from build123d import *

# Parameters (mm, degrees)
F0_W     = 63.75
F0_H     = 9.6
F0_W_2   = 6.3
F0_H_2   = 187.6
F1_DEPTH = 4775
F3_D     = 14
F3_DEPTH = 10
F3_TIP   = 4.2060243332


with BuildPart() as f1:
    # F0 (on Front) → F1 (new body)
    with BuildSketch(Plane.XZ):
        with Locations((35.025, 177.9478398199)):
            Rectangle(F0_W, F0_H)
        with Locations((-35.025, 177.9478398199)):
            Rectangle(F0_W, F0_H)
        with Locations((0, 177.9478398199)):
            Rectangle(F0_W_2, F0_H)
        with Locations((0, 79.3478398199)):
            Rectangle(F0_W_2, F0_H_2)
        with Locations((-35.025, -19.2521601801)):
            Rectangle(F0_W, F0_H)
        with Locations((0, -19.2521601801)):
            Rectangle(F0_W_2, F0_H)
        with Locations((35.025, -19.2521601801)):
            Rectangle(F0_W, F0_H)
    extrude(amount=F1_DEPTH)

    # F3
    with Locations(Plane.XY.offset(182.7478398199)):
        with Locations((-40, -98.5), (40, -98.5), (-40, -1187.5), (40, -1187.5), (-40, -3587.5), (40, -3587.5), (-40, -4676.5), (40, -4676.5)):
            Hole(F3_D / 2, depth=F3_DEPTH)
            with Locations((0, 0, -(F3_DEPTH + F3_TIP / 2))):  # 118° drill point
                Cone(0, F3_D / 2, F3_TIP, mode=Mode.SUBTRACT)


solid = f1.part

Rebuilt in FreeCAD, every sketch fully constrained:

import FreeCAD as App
import Part
import Sketcher
from FreeCAD import Vector


def add_polygon(sketch, points):
    """Adds a closed chain of lines whose ends are joined by coincident constraints."""
    first, n = sketch.GeometryCount, len(points)
    for a, b in zip(points, points[1:] + points[:1]):
        sketch.addGeometry(Part.LineSegment(App.Vector(*a, 0), App.Vector(*b, 0)), False)
    for i in range(n):
        sketch.addConstraint(Sketcher.Constraint("Coincident", first + i, 2, first + (i + 1) % n, 1))

doc = App.newDocument("Part")
params = doc.addObject("Spreadsheet::Sheet", "Params")
for row, (alias, value) in enumerate([
    ("sketch1_width", "133.8 mm"),
    ("sketch1_height", "9.6 mm"),
    ("sketch1_height2", "187.6 mm"),
    ("sketch1_width2", "63.75 mm"),
    ("pad1_length", "4775 mm"),
    ("sketch2_diameter", "14 mm"),
    ("hole_diameter", "14 mm"),
    ("hole_depth", "10 mm"),
], start=1):
    params.set(f"A{row}", alias)
    params.set(f"B{row}", "=" + value)
    params.setAlias(f"B{row}", alias)

body = doc.addObject("PartDesign::Body", "Body")

sketch1 = body.newObject("Sketcher::SketchObject", "Sketch")
sketch1.AttachmentSupport = (doc.getObject("XZ_Plane"), [""])
sketch1.MapMode = "FlatFace"
add_polygon(sketch1, [(67, 173), (67, 183), (-67, 183), (-67, 173), (-3, 173), (-3, -14), (-67, -14), (-67, -24), (67, -24), (67, -14), (3, -14), (3, 173)])
sketch1.addConstraint([
    Sketcher.Constraint("Vertical", 0),
    Sketcher.Constraint("Horizontal", 1),
    Sketcher.Constraint("Vertical", 2),
    Sketcher.Constraint("Horizontal", 3),
    Sketcher.Constraint("Vertical", 4),
    Sketcher.Constraint("Horizontal", 5),
    Sketcher.Constraint("Vertical", 6),
    Sketcher.Constraint("Horizontal", 7),
    Sketcher.Constraint("Vertical", 8),
    Sketcher.Constraint("Horizontal", 9),
    Sketcher.Constraint("Vertical", 10),
    Sketcher.Constraint("Horizontal", 11),
    Sketcher.Constraint("Symmetric", 5, 2, 8, 2, -2),
    Sketcher.Constraint("Symmetric", 3, 2, 10, 2, -2),
    Sketcher.Constraint("Vertical", 2, 2, 5, 2),
    Sketcher.Constraint("Vertical", 0, 2, 7, 2),
    Sketcher.Constraint("Equal", 2, 6),
    Sketcher.Constraint("DistanceX", 1, 2, 1, 1, 133.8),
    Sketcher.Constraint("DistanceY", 0, 1, 0, 2, 9.6),
    Sketcher.Constraint("DistanceY", 4, 2, 4, 1, 187.6),
    Sketcher.Constraint("DistanceX", 3, 1, 3, 2, 63.75),
    Sketcher.Constraint("DistanceY", -1, 1, 0, 2, 182.74784),
])
sketch1.setExpression("Constraints[29]", "Params.sketch1_width")
sketch1.setExpression("Constraints[30]", "Params.sketch1_height")
sketch1.setExpression("Constraints[31]", "Params.sketch1_height2")
sketch1.setExpression("Constraints[32]", "Params.sketch1_width2")
pad1 = body.newObject("PartDesign::Pad", "Pad")
pad1.Profile = sketch1
pad1.setExpression("Length", "Params.pad1_length")

sketch2 = body.newObject("Sketcher::SketchObject", "Sketch001")
sketch2.AttachmentSupport = (doc.getObject("XY_Plane"), [""])
sketch2.MapMode = "FlatFace"
sketch2.AttachmentOffset = App.Placement(Vector(0, 0, 182.74784), App.Rotation())
sketch2.addGeometry([
    Part.Circle(Vector(-40, -98, 0), Vector(0, 0, 1), 7),
    Part.Circle(Vector(40, -98, 0), Vector(0, 0, 1), 7),
    Part.Circle(Vector(-40, -1188, 0), Vector(0, 0, 1), 7),
    Part.Circle(Vector(40, -1188, 0), Vector(0, 0, 1), 7),
    Part.Circle(Vector(-40, -3588, 0), Vector(0, 0, 1), 7),
    Part.Circle(Vector(40, -3588, 0), Vector(0, 0, 1), 7),
    Part.Circle(Vector(-40, -4676, 0), Vector(0, 0, 1), 7),
    Part.Circle(Vector(40, -4676, 0), Vector(0, 0, 1), 7),
], False)
sketch2.addConstraint([
    Sketcher.Constraint("Equal", 0, 1),
    Sketcher.Constraint("Equal", 1, 2),
    Sketcher.Constraint("Equal", 2, 3),
    Sketcher.Constraint("Equal", 3, 4),
    Sketcher.Constraint("Equal", 4, 5),
    Sketcher.Constraint("Equal", 5, 6),
    Sketcher.Constraint("Equal", 6, 7),
    Sketcher.Constraint("Symmetric", 0, 3, 1, 3, -2),
    Sketcher.Constraint("Symmetric", 2, 3, 3, 3, -2),
    Sketcher.Constraint("Symmetric", 4, 3, 5, 3, -2),
    Sketcher.Constraint("Symmetric", 6, 3, 7, 3, -2),
    Sketcher.Constraint("Vertical", 0, 3, 2, 3),
    Sketcher.Constraint("Vertical", 2, 3, 4, 3),
    Sketcher.Constraint("Vertical", 4, 3, 6, 3),
    Sketcher.Constraint("Diameter", 0, 14.0),
    Sketcher.Constraint("DistanceX", 0, 3, -1, 1, 40.0),
    Sketcher.Constraint("DistanceY", 2, 3, 0, 3, 1089.0),
    Sketcher.Constraint("DistanceY", 4, 3, 2, 3, 2400.0),
    Sketcher.Constraint("DistanceY", 6, 3, 4, 3, 1089.0),
    Sketcher.Constraint("DistanceY", 0, 3, -1, 1, 98.5),
])
sketch2.setExpression("Constraints[14]", "Params.sketch2_diameter")
doc.recompute()
hole = body.newObject("PartDesign::Hole", "Hole")
hole.Profile = sketch2
hole.ThreadType = "None"
hole.setExpression("Diameter", "Params.hole_diameter")
hole.DepthType = "Dimension"
hole.setExpression("Depth", "Params.hole_depth")
hole.DrillPoint = "Angled"
hole.DrillPointAngle = 118

doc.recompute()
